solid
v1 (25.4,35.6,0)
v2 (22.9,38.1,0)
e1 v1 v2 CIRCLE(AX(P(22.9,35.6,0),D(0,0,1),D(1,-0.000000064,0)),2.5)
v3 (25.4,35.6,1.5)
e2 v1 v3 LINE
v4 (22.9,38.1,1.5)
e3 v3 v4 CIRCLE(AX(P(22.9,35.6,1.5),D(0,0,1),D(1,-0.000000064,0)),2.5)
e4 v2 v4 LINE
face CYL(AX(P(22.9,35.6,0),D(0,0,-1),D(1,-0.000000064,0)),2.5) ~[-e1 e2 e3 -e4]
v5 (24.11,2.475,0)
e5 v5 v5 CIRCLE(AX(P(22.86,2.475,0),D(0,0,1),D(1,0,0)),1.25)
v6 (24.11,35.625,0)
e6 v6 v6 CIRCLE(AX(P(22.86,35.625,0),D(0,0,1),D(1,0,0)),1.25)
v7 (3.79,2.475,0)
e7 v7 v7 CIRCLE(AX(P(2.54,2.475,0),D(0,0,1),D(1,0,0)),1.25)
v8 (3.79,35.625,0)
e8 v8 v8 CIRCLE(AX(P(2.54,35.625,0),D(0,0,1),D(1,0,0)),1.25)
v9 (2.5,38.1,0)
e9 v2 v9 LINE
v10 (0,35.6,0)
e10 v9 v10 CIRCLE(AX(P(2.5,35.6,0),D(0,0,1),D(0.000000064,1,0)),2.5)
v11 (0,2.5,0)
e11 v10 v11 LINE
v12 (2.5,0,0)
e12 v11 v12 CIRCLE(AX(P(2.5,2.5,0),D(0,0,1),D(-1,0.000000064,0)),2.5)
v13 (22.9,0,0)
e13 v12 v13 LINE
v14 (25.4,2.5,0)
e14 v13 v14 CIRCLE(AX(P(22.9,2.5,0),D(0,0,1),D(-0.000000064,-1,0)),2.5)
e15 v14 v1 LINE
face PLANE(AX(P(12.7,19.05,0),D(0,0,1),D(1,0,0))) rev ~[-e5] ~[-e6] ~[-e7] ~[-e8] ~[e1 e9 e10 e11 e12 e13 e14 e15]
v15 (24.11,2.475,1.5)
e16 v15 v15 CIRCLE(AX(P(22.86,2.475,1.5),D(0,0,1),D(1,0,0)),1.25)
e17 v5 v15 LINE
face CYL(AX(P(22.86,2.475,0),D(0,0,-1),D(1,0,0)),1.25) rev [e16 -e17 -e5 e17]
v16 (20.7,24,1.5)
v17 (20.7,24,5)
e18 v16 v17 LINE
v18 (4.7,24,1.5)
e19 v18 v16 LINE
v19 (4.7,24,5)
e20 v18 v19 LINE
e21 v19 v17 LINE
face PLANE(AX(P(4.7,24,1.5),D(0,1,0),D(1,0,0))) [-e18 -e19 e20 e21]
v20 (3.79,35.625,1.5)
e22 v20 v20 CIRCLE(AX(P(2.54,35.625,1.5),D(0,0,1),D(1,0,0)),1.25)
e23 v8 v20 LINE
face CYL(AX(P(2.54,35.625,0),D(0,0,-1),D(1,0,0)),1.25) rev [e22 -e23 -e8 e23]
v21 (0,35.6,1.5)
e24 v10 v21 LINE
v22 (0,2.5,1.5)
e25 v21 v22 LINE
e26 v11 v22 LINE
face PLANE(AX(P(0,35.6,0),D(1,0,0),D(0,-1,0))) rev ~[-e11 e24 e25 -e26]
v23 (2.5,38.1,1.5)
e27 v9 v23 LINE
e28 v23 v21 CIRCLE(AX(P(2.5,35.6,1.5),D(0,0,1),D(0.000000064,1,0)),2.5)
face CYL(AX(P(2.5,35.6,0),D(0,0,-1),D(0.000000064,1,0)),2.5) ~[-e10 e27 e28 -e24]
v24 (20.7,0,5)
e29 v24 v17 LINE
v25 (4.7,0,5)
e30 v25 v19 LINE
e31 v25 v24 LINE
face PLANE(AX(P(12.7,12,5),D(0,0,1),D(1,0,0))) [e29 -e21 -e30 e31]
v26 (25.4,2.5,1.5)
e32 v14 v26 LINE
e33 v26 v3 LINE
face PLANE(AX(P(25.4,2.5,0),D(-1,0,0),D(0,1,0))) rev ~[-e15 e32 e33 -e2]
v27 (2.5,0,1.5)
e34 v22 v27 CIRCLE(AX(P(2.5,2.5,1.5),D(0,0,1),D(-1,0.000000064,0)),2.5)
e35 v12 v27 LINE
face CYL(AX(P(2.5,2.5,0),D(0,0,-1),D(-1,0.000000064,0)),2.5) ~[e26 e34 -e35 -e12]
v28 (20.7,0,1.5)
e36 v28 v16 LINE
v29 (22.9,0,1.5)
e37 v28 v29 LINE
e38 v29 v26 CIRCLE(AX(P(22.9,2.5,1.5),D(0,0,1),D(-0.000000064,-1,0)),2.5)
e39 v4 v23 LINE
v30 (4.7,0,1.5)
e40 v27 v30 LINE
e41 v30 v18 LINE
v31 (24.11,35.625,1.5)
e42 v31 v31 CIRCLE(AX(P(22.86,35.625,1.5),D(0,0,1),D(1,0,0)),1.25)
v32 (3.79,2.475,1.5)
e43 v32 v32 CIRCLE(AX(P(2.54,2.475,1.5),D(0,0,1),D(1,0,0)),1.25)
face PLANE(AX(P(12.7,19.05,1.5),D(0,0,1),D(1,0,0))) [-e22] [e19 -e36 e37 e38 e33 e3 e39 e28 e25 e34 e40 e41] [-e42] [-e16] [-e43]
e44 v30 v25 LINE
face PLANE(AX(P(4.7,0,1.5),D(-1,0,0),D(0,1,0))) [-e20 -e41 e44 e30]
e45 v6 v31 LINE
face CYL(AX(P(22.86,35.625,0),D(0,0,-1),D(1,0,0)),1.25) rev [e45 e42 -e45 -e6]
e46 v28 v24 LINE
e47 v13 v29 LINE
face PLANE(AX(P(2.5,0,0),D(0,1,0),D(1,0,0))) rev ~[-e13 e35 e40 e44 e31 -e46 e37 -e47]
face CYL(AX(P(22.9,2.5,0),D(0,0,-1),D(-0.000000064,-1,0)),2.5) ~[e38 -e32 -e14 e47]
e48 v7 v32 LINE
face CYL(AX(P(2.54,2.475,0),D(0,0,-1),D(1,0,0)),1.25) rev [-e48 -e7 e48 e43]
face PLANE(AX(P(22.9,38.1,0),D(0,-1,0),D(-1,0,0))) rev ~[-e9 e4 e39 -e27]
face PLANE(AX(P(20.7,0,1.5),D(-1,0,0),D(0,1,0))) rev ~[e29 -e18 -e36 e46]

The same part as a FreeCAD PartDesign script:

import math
import FreeCAD as App
import Part
import Sketcher
from FreeCAD import Vector

doc = App.newDocument("Part")
body = doc.addObject("PartDesign::Body", "Body")

# Sketch on XY plane
sketch1 = body.newObject("Sketcher::SketchObject", "Sketch")
sketch1.AttachmentSupport = (doc.getObject("XY_Plane"), [""])
sketch1.MapMode = "FlatFace"
sketch1.addGeometry([
    Part.ArcOfCircle(Part.Circle(Vector(2.5, 2.5, 0), Vector(0, 0, 1), 2.5), math.radians(180), math.radians(270)),  # 0
    Part.LineSegment(Vector(2.5, 0, 0), Vector(22.9, 0, 0)),  # 1
    Part.ArcOfCircle(Part.Circle(Vector(22.9, 2.5, 0), Vector(0, 0, 1), 2.5), math.radians(-90), math.radians(0)),  # 2
    Part.LineSegment(Vector(25.4, 2.5, 0), Vector(25.4, 35.6, 0)),  # 3
    Part.ArcOfCircle(Part.Circle(Vector(22.9, 35.6, 0), Vector(0, 0, 1), 2.5), math.radians(0), math.radians(90)),  # 4
    Part.LineSegment(Vector(22.9, 38.1, 0), Vector(2.5, 38.1, 0)),  # 5
    Part.ArcOfCircle(Part.Circle(Vector(2.5, 35.6, 0), Vector(0, 0, 1), 2.5), math.radians(90), math.radians(180)),  # 6
    Part.LineSegment(Vector(0, 35.6, 0), Vector(0, 2.5, 0)),  # 7
    Part.Circle(Vector(2.5, 2.5, 0), Vector(0, 0, 1), 1.2),  # 8
    Part.Circle(Vector(22.9, 2.5, 0), Vector(0, 0, 1), 1.2),  # 9
    Part.Circle(Vector(2.5, 35.6, 0), Vector(0, 0, 1), 1.2),  # 10
    Part.Circle(Vector(22.9, 35.6, 0), Vector(0, 0, 1), 1.2),  # 11
], False)
sketch1.addConstraint([
    Sketcher.Constraint("Tangent", 0, 2, 1, 1),
    Sketcher.Constraint("Tangent", 1, 2, 2, 1),
    Sketcher.Constraint("Tangent", 2, 2, 3, 1),
    Sketcher.Constraint("Tangent", 3, 2, 4, 1),
    Sketcher.Constraint("Tangent", 4, 2, 5, 1),
    Sketcher.Constraint("Tangent", 5, 2, 6, 1),
    Sketcher.Constraint("Tangent", 6, 2, 7, 1),
    Sketcher.Constraint("Tangent", 7, 2, 0, 1),
    Sketcher.Constraint("Horizontal", 1),
    Sketcher.Constraint("Vertical", 3),
    Sketcher.Constraint("Horizontal", 5),
    Sketcher.Constraint("Vertical", 7),
    Sketcher.Constraint("Equal", 0, 2),
    Sketcher.Constraint("Equal", 2, 4),
    Sketcher.Constraint("Equal", 4, 6),
    Sketcher.Constraint("Equal", 8, 9),
    Sketcher.Constraint("Equal", 9, 10),
    Sketcher.Constraint("Equal", 10, 11),
    Sketcher.Constraint("PointOnObject", 0, 2, -1),
    Sketcher.Constraint("PointOnObject", 6, 2, -2),
    Sketcher.Constraint("Horizontal", 8, 3, 9, 3),
    Sketcher.Constraint("Horizontal", 10, 3, 11, 3),
    Sketcher.Constraint("Vertical", 8, 3, 10, 3),
    Sketcher.Constraint("Vertical", 9, 3, 11, 3),
    Sketcher.Constraint("Diameter", 8, 2.5),
    Sketcher.Constraint("Radius", 0, 2.5),
    Sketcher.Constraint("DistanceX", 1, 1, 1, 2, 20.4),
    Sketcher.Constraint("DistanceY", 3, 1, 3, 2, 33.1),
    Sketcher.Constraint("DistanceX", -1, 1, 8, 3, 2.54),
    Sketcher.Constraint("DistanceX", -1, 1, 9, 3, 22.86),
    Sketcher.Constraint("DistanceY", 8, 3, 10, 3, 33.15),
    Sketcher.Constraint("DistanceY", -1, 1, 8, 3, 2.475),
])
pad1 = body.newObject("PartDesign::Pad", "Pad")
pad1.Profile = sketch1
pad1.Length = 1.5

# Sketch on XY plane
sketch2 = body.newObject("Sketcher::SketchObject", "Sketch001")
sketch2.AttachmentSupport = (doc.getObject("XY_Plane"), [""])
sketch2.MapMode = "FlatFace"
sketch2.AttachmentOffset = App.Placement(Vector(0, 0, 1.5), App.Rotation())
sketch2.addGeometry([
    Part.LineSegment(Vector(5, 24, 0), Vector(5, 0, 0)),
    Part.LineSegment(Vector(5, 0, 0), Vector(21, 0, 0)),
    Part.LineSegment(Vector(21, 0, 0), Vector(21, 24, 0)),
    Part.LineSegment(Vector(21, 24, 0), Vector(5, 24, 0)),
], False)
sketch2.addConstraint([
    Sketcher.Constraint("Coincident", 0, 2, 1, 1),
    Sketcher.Constraint("Coincident", 1, 2, 2, 1),
    Sketcher.Constraint("Coincident", 2, 2, 3, 1),
    Sketcher.Constraint("Coincident", 3, 2, 0, 1),
    Sketcher.Constraint("Vertical", 0),
    Sketcher.Constraint("Horizontal", 1),
    Sketcher.Constraint("Vertical", 2),
    Sketcher.Constraint("Horizontal", 3),
    Sketcher.Constraint("PointOnObject", 0, 2, -1),
    Sketcher.Constraint("DistanceX", 1, 1, 1, 2, 16.0),
    Sketcher.Constraint("DistanceY", 0, 2, 0, 1, 24.0),
    Sketcher.Constraint("DistanceX", -1, 1, 0, 2, 4.7),
])
pad2 = body.newObject("PartDesign::Pad", "Pad001")
pad2.Profile = sketch2
pad2.Length = 3.5

doc.recompute()
